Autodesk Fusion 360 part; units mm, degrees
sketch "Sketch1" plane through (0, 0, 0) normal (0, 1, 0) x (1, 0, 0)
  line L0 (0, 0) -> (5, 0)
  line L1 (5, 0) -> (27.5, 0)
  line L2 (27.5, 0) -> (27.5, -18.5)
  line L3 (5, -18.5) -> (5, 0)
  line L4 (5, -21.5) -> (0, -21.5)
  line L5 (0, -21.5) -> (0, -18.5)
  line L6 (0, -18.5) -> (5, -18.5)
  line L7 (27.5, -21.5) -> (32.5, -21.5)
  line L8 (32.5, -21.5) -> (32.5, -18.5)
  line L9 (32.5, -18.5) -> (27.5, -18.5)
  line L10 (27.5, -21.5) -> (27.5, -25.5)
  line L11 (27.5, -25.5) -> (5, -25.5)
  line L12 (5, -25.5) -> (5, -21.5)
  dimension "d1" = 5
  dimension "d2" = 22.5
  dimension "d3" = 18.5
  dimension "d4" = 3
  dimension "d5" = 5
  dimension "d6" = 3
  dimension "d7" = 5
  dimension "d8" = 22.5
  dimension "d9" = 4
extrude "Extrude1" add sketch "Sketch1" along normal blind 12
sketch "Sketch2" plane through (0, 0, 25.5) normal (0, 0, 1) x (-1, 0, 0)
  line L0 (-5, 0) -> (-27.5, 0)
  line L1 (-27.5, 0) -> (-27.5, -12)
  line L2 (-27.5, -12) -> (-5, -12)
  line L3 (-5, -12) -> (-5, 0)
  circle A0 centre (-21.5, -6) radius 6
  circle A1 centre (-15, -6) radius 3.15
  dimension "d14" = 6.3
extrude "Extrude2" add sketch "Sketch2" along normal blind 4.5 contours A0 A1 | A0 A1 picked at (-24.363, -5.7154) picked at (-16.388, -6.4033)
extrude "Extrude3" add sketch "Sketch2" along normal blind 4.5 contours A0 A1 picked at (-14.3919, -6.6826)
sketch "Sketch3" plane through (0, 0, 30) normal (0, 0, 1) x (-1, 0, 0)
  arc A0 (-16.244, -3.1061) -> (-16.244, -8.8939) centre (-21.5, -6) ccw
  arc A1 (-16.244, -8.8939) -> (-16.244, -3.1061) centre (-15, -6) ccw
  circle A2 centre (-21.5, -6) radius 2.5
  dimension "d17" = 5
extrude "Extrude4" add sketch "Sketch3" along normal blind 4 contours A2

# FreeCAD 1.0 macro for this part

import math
import FreeCAD as App
import Part
import Sketcher
from FreeCAD import Vector
Q = App.Units.Quantity

doc = App.newDocument("Part")
body = doc.addObject("PartDesign::Body", "Body")

sketch1 = doc.addObject("Sketcher::SketchObject", "Sketch")
body.addObject(sketch1)
sketch1.AttachmentSupport = (doc.XZ_Plane, [""])
sketch1.MapMode = "FlatFace"
sketch1.addGeometry([
    Part.LineSegment(Vector(27.5, 0, 0), Vector(5, 0, 0)),
    Part.LineSegment(Vector(5, 0, 0), Vector(5, 18.5, 0)),
    Part.LineSegment(Vector(5, 18.5, 0), Vector(0, 18.5, 0)),
    Part.LineSegment(Vector(0, 18.5, 0), Vector(0, 21.5, 0)),
    Part.LineSegment(Vector(0, 21.5, 0), Vector(5, 21.5, 0)),
    Part.LineSegment(Vector(5, 21.5, 0), Vector(5, 25.5, 0)),
    Part.LineSegment(Vector(5, 25.5, 0), Vector(27.5, 25.5, 0)),
    Part.LineSegment(Vector(27.5, 25.5, 0), Vector(27.5, 21.5, 0)),
    Part.LineSegment(Vector(27.5, 21.5, 0), Vector(32.5, 21.5, 0)),
    Part.LineSegment(Vector(32.5, 21.5, 0), Vector(32.5, 18.5, 0)),
    Part.LineSegment(Vector(32.5, 18.5, 0), Vector(27.5, 18.5, 0)),
    Part.LineSegment(Vector(27.5, 18.5, 0), Vector(27.5, 0, 0)),
], False)
sketch1.addConstraint([
    Sketcher.Constraint("Coincident", 0, 2, 1, 1),
    Sketcher.Constraint("Coincident", 1, 2, 2, 1),
    Sketcher.Constraint("Coincident", 2, 2, 3, 1),
    Sketcher.Constraint("Coincident", 3, 2, 4, 1),
    Sketcher.Constraint("Coincident", 4, 2, 5, 1),
    Sketcher.Constraint("Coincident", 5, 2, 6, 1),
    Sketcher.Constraint("Coincident", 6, 2, 7, 1),
    Sketcher.Constraint("Coincident", 7, 2, 8, 1),
    Sketcher.Constraint("Coincident", 8, 2, 9, 1),
    Sketcher.Constraint("Coincident", 9, 2, 10, 1),
    Sketcher.Constraint("Coincident", 10, 2, 11, 1),
    Sketcher.Constraint("Coincident", 11, 2, 0, 1),
    Sketcher.Constraint("Horizontal", 0),
    Sketcher.Constraint("Vertical", 1),
    Sketcher.Constraint("Horizontal", 2),
    Sketcher.Constraint("Vertical", 3),
    Sketcher.Constraint("Horizontal", 4),
    Sketcher.Constraint("Vertical", 5),
    Sketcher.Constraint("Horizontal", 6),
    Sketcher.Constraint("Vertical", 7),
    Sketcher.Constraint("Horizontal", 8),
    Sketcher.Constraint("Vertical", 9),
    Sketcher.Constraint("Horizontal", 10),
    Sketcher.Constraint("Vertical", 11),
    Sketcher.Constraint("PointOnObject", 0, 2, -1),
    Sketcher.Constraint("PointOnObject", 2, 2, -2),
    Sketcher.Constraint("Horizontal", 4, 2, 7, 2),
    Sketcher.Constraint("Horizontal", 2, 2, 9, 2),
    Sketcher.Constraint("Vertical", 1, 2, 4, 2),
    Sketcher.Constraint("Vertical", 7, 2, 10, 2),
    Sketcher.Constraint("Equal", 4, 8),
    Sketcher.Constraint("DistanceX", 2, 2, 2, 1, Q("5 mm")),
    Sketcher.Constraint("DistanceY", 3, 1, 3, 2, Q("3 mm")),
    Sketcher.Constraint("DistanceY", 5, 1, 5, 2, Q("4 mm")),
    Sketcher.Constraint("DistanceX", 0, 2, 0, 1, Q("22.5 mm")),
    Sketcher.Constraint("DistanceY", 1, 1, 1, 2, Q("18.5 mm")),
])
pad1 = doc.addObject("PartDesign::Pad", "Pad")
body.addObject(pad1)
pad1.Profile = sketch1
pad1.Length = 12
pad1.Reversed = True

sketch2 = doc.addObject("Sketcher::SketchObject", "Sketch001")
body.addObject(sketch2)
sketch2.AttachmentSupport = (doc.XY_Plane, [""])
sketch2.MapMode = "FlatFace"
sketch2.AttachmentOffset = App.Placement(Vector(0, 0, 25.5), App.Rotation())
sketch2.addGeometry(Part.Circle(Vector(21.5, 6, 0), Vector(0, 0, 1), 6), False)
sketch2.addConstraint([
    Sketcher.Constraint("Diameter", 0, Q("12 mm")),
    Sketcher.Constraint("DistanceY", -1, 1, 0, 3, Q("6 mm")),
    Sketcher.Constraint("DistanceX", -1, 1, 0, 3, Q("21.5 mm")),
])
pad2 = doc.addObject("PartDesign::Pad", "Pad001")
body.addObject(pad2)
pad2.Profile = sketch2
pad2.Length = 4.5

sketch3 = doc.addObject("Sketcher::SketchObject", "Sketch002")
body.addObject(sketch3)
sketch3.AttachmentSupport = (doc.XY_Plane, [""])
sketch3.MapMode = "FlatFace"
sketch3.AttachmentOffset = App.Placement(Vector(0, 0, 25.5), App.Rotation())
sketch3.addGeometry([
    Part.ArcOfCircle(Part.Circle(Vector(15, 6, 0), Vector(0, 0, 1), 3.15), math.radians(66.738214), math.radians(293.261786)),
    Part.ArcOfCircle(Part.Circle(Vector(21.5, 6, 0), Vector(0, 0, 1), 6), math.radians(151.162786), math.radians(208.837214)),
], False)
sketch3.addConstraint([
    Sketcher.Constraint("Coincident", 0, 1, 1, 1),
    Sketcher.Constraint("Coincident", 1, 2, 0, 2),
    Sketcher.Constraint("Horizontal", 0, 3, 1, 3),
    Sketcher.Constraint("Radius", 0, Q("3.15 mm")),
    Sketcher.Constraint("Radius", 1, Q("6 mm")),
    Sketcher.Constraint("DistanceX", -1, 1, 0, 3, Q("15 mm")),
    Sketcher.Constraint("DistanceY", -1, 1, 0, 3, Q("6 mm")),
    Sketcher.Constraint("DistanceX", -1, 1, 1, 3, Q("21.5 mm")),
])
pad3 = doc.addObject("PartDesign::Pad", "Pad002")
body.addObject(pad3)
pad3.Profile = sketch3
pad3.Length = 4.5

sketch4 = doc.addObject("Sketcher::SketchObject", "Sketch003")
body.addObject(sketch4)
sketch4.AttachmentSupport = (doc.XY_Plane, [""])
sketch4.MapMode = "FlatFace"
sketch4.AttachmentOffset = App.Placement(Vector(0, 0, 30), App.Rotation())
sketch4.addGeometry(Part.Circle(Vector(21.5, 6, 0), Vector(0, 0, 1), 2.5), False)
sketch4.addConstraint([
    Sketcher.Constraint("Diameter", 0, Q("5 mm")),
    Sketcher.Constraint("DistanceY", -1, 1, 0, 3, Q("6 mm")),
    Sketcher.Constraint("DistanceX", -1, 1, 0, 3, Q("21.5 mm")),
])
pad4 = doc.addObject("PartDesign::Pad", "Pad003")
body.addObject(pad4)
pad4.Profile = sketch4
pad4.Length = 4

doc.recompute()
